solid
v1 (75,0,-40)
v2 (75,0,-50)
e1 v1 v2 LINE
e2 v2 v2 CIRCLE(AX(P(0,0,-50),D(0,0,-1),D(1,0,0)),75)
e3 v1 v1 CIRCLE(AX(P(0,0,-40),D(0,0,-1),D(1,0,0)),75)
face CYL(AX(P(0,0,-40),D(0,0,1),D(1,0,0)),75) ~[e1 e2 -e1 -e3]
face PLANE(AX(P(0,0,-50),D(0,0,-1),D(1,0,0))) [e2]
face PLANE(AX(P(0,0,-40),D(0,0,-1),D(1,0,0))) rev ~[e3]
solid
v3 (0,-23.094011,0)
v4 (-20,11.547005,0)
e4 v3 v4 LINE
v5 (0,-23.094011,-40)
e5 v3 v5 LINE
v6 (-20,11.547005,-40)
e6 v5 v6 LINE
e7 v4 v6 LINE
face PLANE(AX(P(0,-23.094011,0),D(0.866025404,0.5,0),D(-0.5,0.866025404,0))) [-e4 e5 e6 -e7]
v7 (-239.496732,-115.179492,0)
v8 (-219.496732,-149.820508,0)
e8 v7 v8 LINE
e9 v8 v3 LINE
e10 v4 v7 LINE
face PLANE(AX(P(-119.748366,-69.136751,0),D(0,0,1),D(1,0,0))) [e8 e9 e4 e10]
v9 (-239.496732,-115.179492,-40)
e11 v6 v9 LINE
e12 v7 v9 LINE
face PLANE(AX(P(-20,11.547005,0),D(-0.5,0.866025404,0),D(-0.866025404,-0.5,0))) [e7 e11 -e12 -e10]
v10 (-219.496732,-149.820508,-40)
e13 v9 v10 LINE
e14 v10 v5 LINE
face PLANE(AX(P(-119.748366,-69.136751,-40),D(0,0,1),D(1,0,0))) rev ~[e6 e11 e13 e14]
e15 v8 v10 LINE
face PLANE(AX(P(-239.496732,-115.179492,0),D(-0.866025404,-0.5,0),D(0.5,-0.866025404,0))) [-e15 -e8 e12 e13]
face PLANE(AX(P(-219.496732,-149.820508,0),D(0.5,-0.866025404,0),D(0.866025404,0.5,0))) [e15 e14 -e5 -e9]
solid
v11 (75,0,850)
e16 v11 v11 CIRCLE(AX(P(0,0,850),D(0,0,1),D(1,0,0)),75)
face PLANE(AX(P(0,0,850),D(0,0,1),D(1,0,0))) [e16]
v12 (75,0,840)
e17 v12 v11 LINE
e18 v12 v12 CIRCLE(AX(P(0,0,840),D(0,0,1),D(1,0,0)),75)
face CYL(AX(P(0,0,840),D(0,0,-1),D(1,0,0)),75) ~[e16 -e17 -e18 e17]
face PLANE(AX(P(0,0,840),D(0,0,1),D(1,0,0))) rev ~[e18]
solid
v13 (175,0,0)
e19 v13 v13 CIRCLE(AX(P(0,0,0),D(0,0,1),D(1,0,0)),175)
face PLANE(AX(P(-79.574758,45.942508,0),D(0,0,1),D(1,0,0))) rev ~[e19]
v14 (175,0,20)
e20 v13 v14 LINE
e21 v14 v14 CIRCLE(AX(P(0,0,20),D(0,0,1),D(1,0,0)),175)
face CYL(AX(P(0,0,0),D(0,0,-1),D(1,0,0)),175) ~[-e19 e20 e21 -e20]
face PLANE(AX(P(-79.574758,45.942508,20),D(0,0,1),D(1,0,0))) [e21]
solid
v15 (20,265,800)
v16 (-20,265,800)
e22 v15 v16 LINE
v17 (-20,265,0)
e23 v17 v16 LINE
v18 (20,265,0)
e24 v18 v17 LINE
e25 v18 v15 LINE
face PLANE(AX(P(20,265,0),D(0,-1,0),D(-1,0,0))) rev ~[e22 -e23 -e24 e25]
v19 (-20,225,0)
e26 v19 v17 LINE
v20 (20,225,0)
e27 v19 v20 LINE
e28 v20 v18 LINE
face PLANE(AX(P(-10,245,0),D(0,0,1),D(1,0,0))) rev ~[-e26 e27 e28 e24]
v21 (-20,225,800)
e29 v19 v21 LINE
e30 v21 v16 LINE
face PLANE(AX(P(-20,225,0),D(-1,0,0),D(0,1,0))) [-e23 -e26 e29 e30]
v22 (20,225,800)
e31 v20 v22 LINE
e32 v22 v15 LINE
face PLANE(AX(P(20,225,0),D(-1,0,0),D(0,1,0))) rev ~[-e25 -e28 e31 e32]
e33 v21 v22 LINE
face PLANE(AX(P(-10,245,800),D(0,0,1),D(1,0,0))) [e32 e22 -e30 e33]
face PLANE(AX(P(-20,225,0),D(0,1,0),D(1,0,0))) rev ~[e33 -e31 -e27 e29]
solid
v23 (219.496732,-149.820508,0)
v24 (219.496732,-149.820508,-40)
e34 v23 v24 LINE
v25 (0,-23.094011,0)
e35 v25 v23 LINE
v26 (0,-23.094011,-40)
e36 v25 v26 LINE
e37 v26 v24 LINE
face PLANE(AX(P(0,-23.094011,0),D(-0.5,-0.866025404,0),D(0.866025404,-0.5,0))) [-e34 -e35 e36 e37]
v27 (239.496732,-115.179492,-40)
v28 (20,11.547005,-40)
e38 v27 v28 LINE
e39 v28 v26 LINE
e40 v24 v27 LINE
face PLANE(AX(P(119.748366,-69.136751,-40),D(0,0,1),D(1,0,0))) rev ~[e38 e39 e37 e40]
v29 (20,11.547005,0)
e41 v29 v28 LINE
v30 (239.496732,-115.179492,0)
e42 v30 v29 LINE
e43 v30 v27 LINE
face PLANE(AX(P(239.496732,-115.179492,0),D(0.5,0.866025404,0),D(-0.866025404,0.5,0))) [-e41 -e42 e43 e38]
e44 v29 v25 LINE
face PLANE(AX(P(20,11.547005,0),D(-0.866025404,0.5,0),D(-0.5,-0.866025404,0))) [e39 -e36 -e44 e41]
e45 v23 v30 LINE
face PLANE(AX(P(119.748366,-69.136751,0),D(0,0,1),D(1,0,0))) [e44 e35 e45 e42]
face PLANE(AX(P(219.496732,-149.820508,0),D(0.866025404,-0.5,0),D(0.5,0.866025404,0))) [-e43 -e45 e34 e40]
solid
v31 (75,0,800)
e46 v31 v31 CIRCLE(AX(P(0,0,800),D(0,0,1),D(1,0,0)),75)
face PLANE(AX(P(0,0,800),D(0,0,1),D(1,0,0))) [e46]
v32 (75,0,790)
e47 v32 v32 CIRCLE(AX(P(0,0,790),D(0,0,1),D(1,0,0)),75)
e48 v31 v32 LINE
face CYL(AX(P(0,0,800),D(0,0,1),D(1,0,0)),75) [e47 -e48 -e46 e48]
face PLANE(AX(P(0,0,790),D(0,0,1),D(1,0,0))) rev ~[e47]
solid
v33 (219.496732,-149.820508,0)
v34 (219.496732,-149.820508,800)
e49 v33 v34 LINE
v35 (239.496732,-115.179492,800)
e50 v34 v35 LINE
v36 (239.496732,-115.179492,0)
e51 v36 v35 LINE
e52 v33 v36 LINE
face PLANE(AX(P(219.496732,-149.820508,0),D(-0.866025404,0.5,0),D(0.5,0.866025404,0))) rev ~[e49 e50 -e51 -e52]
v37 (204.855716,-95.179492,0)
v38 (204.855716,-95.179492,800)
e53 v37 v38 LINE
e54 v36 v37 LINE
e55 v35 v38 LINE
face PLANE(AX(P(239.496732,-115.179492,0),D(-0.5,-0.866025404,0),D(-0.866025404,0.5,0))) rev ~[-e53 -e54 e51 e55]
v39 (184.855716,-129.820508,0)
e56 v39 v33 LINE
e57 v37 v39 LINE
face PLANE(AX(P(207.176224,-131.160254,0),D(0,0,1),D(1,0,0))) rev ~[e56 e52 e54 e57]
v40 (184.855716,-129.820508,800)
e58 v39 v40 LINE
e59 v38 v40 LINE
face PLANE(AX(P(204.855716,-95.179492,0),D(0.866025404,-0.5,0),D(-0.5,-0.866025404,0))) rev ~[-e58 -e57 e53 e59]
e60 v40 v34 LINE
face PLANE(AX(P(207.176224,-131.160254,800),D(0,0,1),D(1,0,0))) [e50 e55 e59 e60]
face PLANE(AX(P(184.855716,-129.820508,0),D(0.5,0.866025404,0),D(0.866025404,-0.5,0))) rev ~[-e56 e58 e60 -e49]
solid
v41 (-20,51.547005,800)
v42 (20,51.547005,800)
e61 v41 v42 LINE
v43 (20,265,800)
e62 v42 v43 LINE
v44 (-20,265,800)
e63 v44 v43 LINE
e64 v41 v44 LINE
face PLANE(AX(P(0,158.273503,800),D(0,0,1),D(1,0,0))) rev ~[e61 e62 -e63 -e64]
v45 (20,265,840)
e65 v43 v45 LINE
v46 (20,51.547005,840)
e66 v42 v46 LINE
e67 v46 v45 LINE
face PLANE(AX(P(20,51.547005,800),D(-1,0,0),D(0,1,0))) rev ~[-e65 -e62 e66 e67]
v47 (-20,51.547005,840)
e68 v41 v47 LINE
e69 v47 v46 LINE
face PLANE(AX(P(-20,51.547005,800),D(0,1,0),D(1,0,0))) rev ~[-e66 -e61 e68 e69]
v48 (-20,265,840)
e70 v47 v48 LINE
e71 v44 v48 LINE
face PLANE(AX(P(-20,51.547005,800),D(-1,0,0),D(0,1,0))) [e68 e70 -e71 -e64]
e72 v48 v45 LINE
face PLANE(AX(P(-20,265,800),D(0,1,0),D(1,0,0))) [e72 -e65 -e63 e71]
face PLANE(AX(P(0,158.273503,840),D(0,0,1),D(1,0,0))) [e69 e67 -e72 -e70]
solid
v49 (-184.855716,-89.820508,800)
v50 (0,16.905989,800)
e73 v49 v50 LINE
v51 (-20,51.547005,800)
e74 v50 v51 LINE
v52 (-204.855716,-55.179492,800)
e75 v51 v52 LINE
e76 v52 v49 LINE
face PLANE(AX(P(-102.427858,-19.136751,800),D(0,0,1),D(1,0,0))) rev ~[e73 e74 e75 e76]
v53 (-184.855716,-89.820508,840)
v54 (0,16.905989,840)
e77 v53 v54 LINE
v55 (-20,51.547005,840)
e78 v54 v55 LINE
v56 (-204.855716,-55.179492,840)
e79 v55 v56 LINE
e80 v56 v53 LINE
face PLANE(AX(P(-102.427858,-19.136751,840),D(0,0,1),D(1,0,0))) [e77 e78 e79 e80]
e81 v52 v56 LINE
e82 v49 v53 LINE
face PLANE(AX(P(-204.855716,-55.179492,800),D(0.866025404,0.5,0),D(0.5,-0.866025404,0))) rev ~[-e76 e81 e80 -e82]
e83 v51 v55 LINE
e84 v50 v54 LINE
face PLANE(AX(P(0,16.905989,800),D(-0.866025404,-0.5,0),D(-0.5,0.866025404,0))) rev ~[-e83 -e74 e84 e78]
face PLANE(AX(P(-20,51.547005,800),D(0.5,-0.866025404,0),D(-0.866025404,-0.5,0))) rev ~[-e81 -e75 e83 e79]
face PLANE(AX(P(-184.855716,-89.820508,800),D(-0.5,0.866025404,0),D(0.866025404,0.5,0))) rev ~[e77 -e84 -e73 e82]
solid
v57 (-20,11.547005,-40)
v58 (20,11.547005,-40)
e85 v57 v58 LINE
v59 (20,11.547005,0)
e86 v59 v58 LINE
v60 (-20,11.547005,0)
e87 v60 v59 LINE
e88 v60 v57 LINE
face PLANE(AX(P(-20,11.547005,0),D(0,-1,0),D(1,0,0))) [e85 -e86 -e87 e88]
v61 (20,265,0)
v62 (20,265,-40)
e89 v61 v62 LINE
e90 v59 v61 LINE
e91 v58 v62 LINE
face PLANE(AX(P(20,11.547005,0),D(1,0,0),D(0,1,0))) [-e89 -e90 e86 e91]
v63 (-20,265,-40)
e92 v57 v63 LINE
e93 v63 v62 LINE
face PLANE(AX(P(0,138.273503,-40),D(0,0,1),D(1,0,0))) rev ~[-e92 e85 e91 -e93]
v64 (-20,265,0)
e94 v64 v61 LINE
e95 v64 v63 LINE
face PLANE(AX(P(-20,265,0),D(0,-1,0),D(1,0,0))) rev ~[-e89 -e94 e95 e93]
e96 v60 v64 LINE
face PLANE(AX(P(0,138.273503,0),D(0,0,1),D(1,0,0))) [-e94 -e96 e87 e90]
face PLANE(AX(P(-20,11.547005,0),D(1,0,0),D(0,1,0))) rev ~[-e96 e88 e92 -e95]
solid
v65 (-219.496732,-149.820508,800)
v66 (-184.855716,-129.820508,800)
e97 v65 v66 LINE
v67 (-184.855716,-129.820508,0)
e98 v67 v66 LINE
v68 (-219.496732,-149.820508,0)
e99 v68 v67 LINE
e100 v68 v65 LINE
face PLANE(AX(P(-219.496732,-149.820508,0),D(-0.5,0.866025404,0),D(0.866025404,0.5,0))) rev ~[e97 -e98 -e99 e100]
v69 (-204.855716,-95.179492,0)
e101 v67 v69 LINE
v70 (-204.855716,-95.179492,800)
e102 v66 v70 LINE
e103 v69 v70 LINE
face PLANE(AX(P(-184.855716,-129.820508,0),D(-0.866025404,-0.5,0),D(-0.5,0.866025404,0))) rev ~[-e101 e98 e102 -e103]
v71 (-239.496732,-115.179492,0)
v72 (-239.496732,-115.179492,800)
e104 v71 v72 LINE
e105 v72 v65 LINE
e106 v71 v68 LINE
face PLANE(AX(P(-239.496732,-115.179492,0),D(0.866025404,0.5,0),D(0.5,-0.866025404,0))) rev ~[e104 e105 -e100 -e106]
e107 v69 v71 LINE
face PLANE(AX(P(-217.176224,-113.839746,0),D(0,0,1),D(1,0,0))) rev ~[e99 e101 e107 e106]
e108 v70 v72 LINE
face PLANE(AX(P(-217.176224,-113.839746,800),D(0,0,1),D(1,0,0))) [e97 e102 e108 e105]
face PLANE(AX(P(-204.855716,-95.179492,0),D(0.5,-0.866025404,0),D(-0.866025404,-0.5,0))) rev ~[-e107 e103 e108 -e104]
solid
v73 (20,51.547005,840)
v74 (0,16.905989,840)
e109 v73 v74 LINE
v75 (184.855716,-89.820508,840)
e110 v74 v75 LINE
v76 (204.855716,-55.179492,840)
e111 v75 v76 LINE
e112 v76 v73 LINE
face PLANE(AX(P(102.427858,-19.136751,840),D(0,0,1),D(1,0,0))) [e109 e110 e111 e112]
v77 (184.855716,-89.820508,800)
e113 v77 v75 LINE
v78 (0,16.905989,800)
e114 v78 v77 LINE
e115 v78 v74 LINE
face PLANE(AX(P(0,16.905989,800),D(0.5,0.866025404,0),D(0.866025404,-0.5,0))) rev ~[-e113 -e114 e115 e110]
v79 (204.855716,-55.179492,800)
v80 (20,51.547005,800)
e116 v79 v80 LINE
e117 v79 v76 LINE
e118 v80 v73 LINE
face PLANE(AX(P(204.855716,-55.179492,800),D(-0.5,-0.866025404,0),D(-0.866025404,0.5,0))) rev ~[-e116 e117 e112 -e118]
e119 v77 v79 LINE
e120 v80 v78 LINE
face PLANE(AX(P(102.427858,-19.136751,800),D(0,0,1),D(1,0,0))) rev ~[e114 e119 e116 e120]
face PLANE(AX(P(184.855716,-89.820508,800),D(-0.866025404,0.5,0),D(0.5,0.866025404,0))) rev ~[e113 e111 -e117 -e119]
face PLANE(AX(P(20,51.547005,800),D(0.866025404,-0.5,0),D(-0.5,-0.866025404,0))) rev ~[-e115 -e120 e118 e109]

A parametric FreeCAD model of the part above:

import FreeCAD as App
import Part
import Sketcher

V = App.Vector
Q = App.Units.Quantity


def add_polygon(sketch, points):
    """Adds a closed chain of lines whose ends are joined by coincident constraints."""
    first, n = sketch.GeometryCount, len(points)
    for a, b in zip(points, points[1:] + points[:1]):
        sketch.addGeometry(Part.LineSegment(App.Vector(*a, 0), App.Vector(*b, 0)), False)
    for i in range(n):
        sketch.addConstraint(Sketcher.Constraint("Coincident", first + i, 2, first + (i + 1) % n, 1))

doc = App.newDocument("Part")
params = doc.addObject("Spreadsheet::Sheet", "Params")
for row, (alias, value) in enumerate([
    ("sketch1_width", "40 mm"),
    ("pad1_length", "800 mm"),
    ("sketch2_diameter", "350 mm"),
    ("pad2_length", "20 mm"),
    ("sketch3_width", "40 mm"),
    ("pad3_length", "40 mm"),
    ("sketch4_length", "40 mm"),
    ("pad4_length", "40 mm"),
    ("sketch5_length", "40 mm"),
    ("pad5_length", "40 mm"),
    ("sketch6_length", "40 mm"),
    ("pad6_length", "800 mm"),
    ("sketch7_length", "40 mm"),
    ("pad7_length", "800 mm"),
    ("sketch8_length", "40 mm"),
    ("pad8_length", "40 mm"),
    ("sketch9_width", "40 mm"),
    ("pad9_length", "40 mm"),
    ("sketch10_length", "40 mm"),
    ("pad10_length", "40 mm"),
    ("sketch11_diameter", "150 mm"),
    ("pad11_length", "10 mm"),
    ("sketch12_diameter", "150 mm"),
    ("pad12_length", "10 mm"),
    ("sketch13_diameter", "150 mm"),
    ("pad13_length", "10 mm"),
], start=1):
    params.set(f"A{row}", alias)
    params.set(f"B{row}", "=" + value)
    params.setAlias(f"B{row}", alias)

body = doc.addObject("PartDesign::Body", "Body")

sketch1 = doc.addObject("Sketcher::SketchObject", "Sketch")
body.addObject(sketch1)
sketch1.AttachmentSupport = (doc.XY_Plane, [""])
sketch1.MapMode = "FlatFace"
add_polygon(sketch1, [(-20, 265), (-20, 225), (20, 225), (20, 265)])
sketch1.addConstraint(Sketcher.Constraint("Vertical", 0))
sketch1.addConstraint(Sketcher.Constraint("Horizontal", 1))
sketch1.addConstraint(Sketcher.Constraint("Vertical", 2))
sketch1.addConstraint(Sketcher.Constraint("Horizontal", 3))
sketch1.addConstraint(Sketcher.Constraint("Equal", 3, 0))
sketch1.addConstraint(Sketcher.Constraint("DistanceX", 1, 1, 1, 2, Q("40 mm")))
sketch1.addConstraint(Sketcher.Constraint("DistanceX", 0, 2, -1, 1, Q("20 mm")))
sketch1.addConstraint(Sketcher.Constraint("DistanceY", -1, 1, 0, 2, Q("225 mm")))
sketch1.setExpression("Constraints[9]", "Params.sketch1_width")
pad1 = doc.addObject("PartDesign::Pad", "Pad")
body.addObject(pad1)
pad1.Profile = sketch1
pad1.setExpression("Length", "Params.pad1_length")
body2 = doc.addObject("PartDesign::Body", "Body001")

sketch2 = doc.addObject("Sketcher::SketchObject", "Sketch001")
body2.addObject(sketch2)
sketch2.AttachmentSupport = (doc.getObject("XY_Plane001"), [""])
sketch2.MapMode = "FlatFace"
sketch2.addGeometry(Part.Circle(V(0, 0, 0), V(0, 0, 1), 175), False)
sketch2.addConstraint(Sketcher.Constraint("Coincident", 0, 3, -1, 1))
sketch2.addConstraint(Sketcher.Constraint("Diameter", 0, Q("350 mm")))
sketch2.setExpression("Constraints[1]", "Params.sketch2_diameter")
pad2 = doc.addObject("PartDesign::Pad", "Pad001")
body2.addObject(pad2)
pad2.Profile = sketch2
pad2.setExpression("Length", "Params.pad2_length")
body3 = doc.addObject("PartDesign::Body", "Body002")

sketch3 = doc.addObject("Sketcher::SketchObject", "Sketch002")
body3.addObject(sketch3)
sketch3.AttachmentSupport = (doc.getObject("XY_Plane002"), [""])
sketch3.MapMode = "FlatFace"
add_polygon(sketch3, [(-20, 265), (-20, 12), (20, 12), (20, 265)])
sketch3.addConstraint(Sketcher.Constraint("Vertical", 0))
sketch3.addConstraint(Sketcher.Constraint("Horizontal", 1))
sketch3.addConstraint(Sketcher.Constraint("Vertical", 2))
sketch3.addConstraint(Sketcher.Constraint("Horizontal", 3))
sketch3.addConstraint(Sketcher.Constraint("DistanceX", 1, 1, 1, 2, Q("40 mm")))
sketch3.addConstraint(Sketcher.Constraint("DistanceX", 0, 2, -1, 1, Q("20 mm")))
sketch3.addConstraint(Sketcher.Constraint("DistanceY", -1, 1, 2, 2, Q("265 mm")))
sketch3.addConstraint(Sketcher.Constraint("DistanceY", 0, 2, 0, 1, Q("253.452995 mm")))
sketch3.setExpression("Constraints[8]", "Params.sketch3_width")
pad3 = doc.addObject("PartDesign::Pad", "Pad002")
body3.addObject(pad3)
pad3.Profile = sketch3
pad3.setExpression("Length", "Params.pad3_length")
pad3.Reversed = True
body4 = doc.addObject("PartDesign::Body", "Body003")

sketch4 = doc.addObject("Sketcher::SketchObject", "Sketch003")
body4.addObject(sketch4)
sketch4.AttachmentSupport = (doc.getObject("XY_Plane003"), [""])
sketch4.MapMode = "FlatFace"
add_polygon(sketch4, [(239, -115), (20, 12), (0, -23), (219, -150)])
sketch4.addConstraint(Sketcher.Constraint("PointOnObject", 1, 2, -2))
sketch4.addConstraint(Sketcher.Constraint("Perpendicular", 0, 1))
sketch4.addConstraint(Sketcher.Constraint("Perpendicular", 1, 2))
sketch4.addConstraint(Sketcher.Constraint("Perpendicular", 2, 3))
sketch4.addConstraint(Sketcher.Constraint("Angle", 0, Q("150 deg")))
sketch4.addConstraint(Sketcher.Constraint("Distance", 1, Q("40 mm")))
sketch4.addConstraint(Sketcher.Constraint("DistanceY", 1, 2, -1, 1, Q("23.094011 mm")))
sketch4.addConstraint(Sketcher.Constraint("DistanceY", 2, 2, -1, 1, Q("149.820508 mm")))
sketch4.setExpression("Constraints[9]", "Params.sketch4_length")
pad4 = doc.addObject("PartDesign::Pad", "Pad003")
body4.addObject(pad4)
pad4.Profile = sketch4
pad4.setExpression("Length", "Params.pad4_length")
pad4.Reversed = True
body5 = doc.addObject("PartDesign::Body", "Body004")

sketch5 = doc.addObject("Sketcher::SketchObject", "Sketch004")
body5.addObject(sketch5)
sketch5.AttachmentSupport = (doc.getObject("XY_Plane004"), [""])
sketch5.MapMode = "FlatFace"
add_polygon(sketch5, [(0, -23), (-20, 12), (-239, -115), (-219, -150)])
sketch5.addConstraint(Sketcher.Constraint("PointOnObject", 3, 2, -2))
sketch5.addConstraint(Sketcher.Constraint("Perpendicular", 0, 1))
sketch5.addConstraint(Sketcher.Constraint("Perpendicular", 1, 2))
sketch5.addConstraint(Sketcher.Constraint("Perpendicular", 2, 3))
sketch5.addConstraint(Sketcher.Constraint("Angle", 0, Q("120 deg")))
sketch5.addConstraint(Sketcher.Constraint("Distance", 0, Q("40 mm")))
sketch5.addConstraint(Sketcher.Constraint("DistanceY", 1, 2, -1, 1, Q("115.179492 mm")))
sketch5.addConstraint(Sketcher.Constraint("DistanceY", 3, 2, -1, 1, Q("23.094011 mm")))
sketch5.setExpression("Constraints[9]", "Params.sketch5_length")
pad5 = doc.addObject("PartDesign::Pad", "Pad004")
body5.addObject(pad5)
pad5.Profile = sketch5
pad5.setExpression("Length", "Params.pad5_length")
pad5.Reversed = True
body6 = doc.addObject("PartDesign::Body", "Body005")

sketch6 = doc.addObject("Sketcher::SketchObject", "Sketch005")
body6.addObject(sketch6)
sketch6.AttachmentSupport = (doc.getObject("XY_Plane005"), [""])
sketch6.MapMode = "FlatFace"
add_polygon(sketch6, [(-205, -95), (-239, -115), (-219, -150), (-185, -130)])
sketch6.addConstraint(Sketcher.Constraint("Perpendicular", 0, 1))
sketch6.addConstraint(Sketcher.Constraint("Perpendicular", 1, 2))
sketch6.addConstraint(Sketcher.Constraint("Perpendicular", 2, 3))
sketch6.addConstraint(Sketcher.Constraint("Equal", 0, 1))
sketch6.addConstraint(Sketcher.Constraint("Angle", 0, Q("-150 deg")))
sketch6.addConstraint(Sketcher.Constraint("Distance", 0, Q("40 mm")))
sketch6.addConstraint(Sketcher.Constraint("DistanceY", 0, 2, -1, 1, Q("115.179492 mm")))
sketch6.addConstraint(Sketcher.Constraint("DistanceX", 0, 2, -1, 1, Q("239.496732 mm")))
sketch6.setExpression("Constraints[9]", "Params.sketch6_length")
pad6 = doc.addObject("PartDesign::Pad", "Pad005")
body6.addObject(pad6)
pad6.Profile = sketch6
pad6.setExpression("Length", "Params.pad6_length")
body7 = doc.addObject("PartDesign::Body", "Body006")

sketch7 = doc.addObject("Sketcher::SketchObject", "Sketch006")
body7.addObject(sketch7)
sketch7.AttachmentSupport = (doc.getObject("XY_Plane006"), [""])
sketch7.MapMode = "FlatFace"
add_polygon(sketch7, [(185, -130), (219, -150), (239, -115), (205, -95)])
sketch7.addConstraint(Sketcher.Constraint("Perpendicular", 0, 1))
sketch7.addConstraint(Sketcher.Constraint("Perpendicular", 1, 2))
sketch7.addConstraint(Sketcher.Constraint("Perpendicular", 2, 3))
sketch7.addConstraint(Sketcher.Constraint("Equal", 0, 1))
sketch7.addConstraint(Sketcher.Constraint("Angle", 0, Q("-30 deg")))
sketch7.addConstraint(Sketcher.Constraint("Distance", 0, Q("40 mm")))
sketch7.addConstraint(Sketcher.Constraint("DistanceY", 0, 2, -1, 1, Q("149.820508 mm")))
sketch7.addConstraint(Sketcher.Constraint("DistanceX", -1, 1, 0, 2, Q("219.496732 mm")))
sketch7.setExpression("Constraints[9]", "Params.sketch7_length")
pad7 = doc.addObject("PartDesign::Pad", "Pad006")
body7.addObject(pad7)
pad7.Profile = sketch7
pad7.setExpression("Length", "Params.pad7_length")
body8 = doc.addObject("PartDesign::Body", "Body007")

sketch8 = doc.addObject("Sketcher::SketchObject", "Sketch007")
body8.addObject(sketch8)
sketch8.AttachmentSupport = (doc.getObject("XY_Plane007"), [""])
sketch8.MapMode = "FlatFace"
sketch8.AttachmentOffset = App.Placement(V(0, 0, 800), App.Rotation())
add_polygon(sketch8, [(0, 17), (-20, 52), (-205, -55), (-185, -90)])
sketch8.addConstraint(Sketcher.Constraint("PointOnObject", 3, 2, -2))
sketch8.addConstraint(Sketcher.Constraint("Perpendicular", 0, 1))
sketch8.addConstraint(Sketcher.Constraint("Perpendicular", 1, 2))
sketch8.addConstraint(Sketcher.Constraint("Perpendicular", 2, 3))
sketch8.addConstraint(Sketcher.Constraint("Angle", 0, Q("120 deg")))
sketch8.addConstraint(Sketcher.Constraint("Distance", 0, Q("40 mm")))
sketch8.addConstraint(Sketcher.Constraint("DistanceY", 1, 2, -1, 1, Q("55.179492 mm")))
sketch8.addConstraint(Sketcher.Constraint("DistanceY", -1, 1, 3, 2, Q("16.905989 mm")))
sketch8.setExpression("Constraints[9]", "Params.sketch8_length")
pad8 = doc.addObject("PartDesign::Pad", "Pad007")
body8.addObject(pad8)
pad8.Profile = sketch8
pad8.setExpression("Length", "Params.pad8_length")
body9 = doc.addObject("PartDesign::Body", "Body008")

sketch9 = doc.addObject("Sketcher::SketchObject", "Sketch008")
body9.addObject(sketch9)
sketch9.AttachmentSupport = (doc.getObject("XY_Plane008"), [""])
sketch9.MapMode = "FlatFace"
sketch9.AttachmentOffset = App.Placement(V(0, 0, 800), App.Rotation())
add_polygon(sketch9, [(-20, 265), (-20, 52), (20, 52), (20, 265)])
sketch9.addConstraint(Sketcher.Constraint("Vertical", 0))
sketch9.addConstraint(Sketcher.Constraint("Horizontal", 1))
sketch9.addConstraint(Sketcher.Constraint("Vertical", 2))
sketch9.addConstraint(Sketcher.Constraint("Horizontal", 3))
sketch9.addConstraint(Sketcher.Constraint("DistanceX", 1, 1, 1, 2, Q("40 mm")))
sketch9.addConstraint(Sketcher.Constraint("DistanceX", 0, 2, -1, 1, Q("20 mm")))
sketch9.addConstraint(Sketcher.Constraint("DistanceY", -1, 1, 2, 2, Q("265 mm")))
sketch9.addConstraint(Sketcher.Constraint("DistanceY", 0, 2, 0, 1, Q("213.452995 mm")))
sketch9.setExpression("Constraints[8]", "Params.sketch9_width")
pad9 = doc.addObject("PartDesign::Pad", "Pad008")
body9.addObject(pad9)
pad9.Profile = sketch9
pad9.setExpression("Length", "Params.pad9_length")
body10 = doc.addObject("PartDesign::Body", "Body009")

sketch10 = doc.addObject("Sketcher::SketchObject", "Sketch009")
body10.addObject(sketch10)
sketch10.AttachmentSupport = (doc.getObject("XY_Plane009"), [""])
sketch10.MapMode = "FlatFace"
sketch10.AttachmentOffset = App.Placement(V(0, 0, 800), App.Rotation())
add_polygon(sketch10, [(205, -55), (20, 52), (0, 17), (185, -90)])
sketch10.addConstraint(Sketcher.Constraint("PointOnObject", 1, 2, -2))
sketch10.addConstraint(Sketcher.Constraint("Perpendicular", 0, 1))
sketch10.addConstraint(Sketcher.Constraint("Perpendicular", 1, 2))
sketch10.addConstraint(Sketcher.Constraint("Perpendicular", 2, 3))
sketch10.addConstraint(Sketcher.Constraint("Angle", 0, Q("150 deg")))
sketch10.addConstraint(Sketcher.Constraint("Distance", 1, Q("40 mm")))
sketch10.addConstraint(Sketcher.Constraint("DistanceY", -1, 1, 1, 2, Q("16.905989 mm")))
sketch10.addConstraint(Sketcher.Constraint("DistanceY", 2, 2, -1, 1, Q("89.820508 mm")))
sketch10.setExpression("Constraints[9]", "Params.sketch10_length")
pad10 = doc.addObject("PartDesign::Pad", "Pad009")
body10.addObject(pad10)
pad10.Profile = sketch10
pad10.setExpression("Length", "Params.pad10_length")
body11 = doc.addObject("PartDesign::Body", "Body010")

sketch11 = doc.addObject("Sketcher::SketchObject", "Sketch010")
body11.addObject(sketch11)
sketch11.AttachmentSupport = (doc.getObject("XY_Plane010"), [""])
sketch11.MapMode = "FlatFace"
sketch11.AttachmentOffset = App.Placement(V(0, 0, 840), App.Rotation())
sketch11.addGeometry(Part.Circle(V(0, 0, 0), V(0, 0, 1), 75), False)
sketch11.addConstraint(Sketcher.Constraint("Coincident", 0, 3, -1, 1))
sketch11.addConstraint(Sketcher.Constraint("Diameter", 0, Q("150 mm")))
sketch11.setExpression("Constraints[1]", "Params.sketch11_diameter")
pad11 = doc.addObject("PartDesign::Pad", "Pad010")
body11.addObject(pad11)
pad11.Profile = sketch11
pad11.setExpression("Length", "Params.pad11_length")
body12 = doc.addObject("PartDesign::Body", "Body011")

sketch12 = doc.addObject("Sketcher::SketchObject", "Sketch011")
body12.addObject(sketch12)
sketch12.AttachmentSupport = (doc.getObject("XY_Plane011"), [""])
sketch12.MapMode = "FlatFace"
sketch12.AttachmentOffset = App.Placement(V(0, 0, 800), App.Rotation())
sketch12.addGeometry(Part.Circle(V(0, 0, 0), V(0, 0, 1), 75), False)
sketch12.addConstraint(Sketcher.Constraint("Coincident", 0, 3, -1, 1))
sketch12.addConstraint(Sketcher.Constraint("Diameter", 0, Q("150 mm")))
sketch12.setExpression("Constraints[1]", "Params.sketch12_diameter")
pad12 = doc.addObject("PartDesign::Pad", "Pad011")
body12.addObject(pad12)
pad12.Profile = sketch12
pad12.setExpression("Length", "Params.pad12_length")
pad12.Reversed = True
body13 = doc.addObject("PartDesign::Body", "Body012")

sketch13 = doc.addObject("Sketcher::SketchObject", "Sketch012")
body13.addObject(sketch13)
sketch13.AttachmentSupport = (doc.getObject("XY_Plane012"), [""])
sketch13.MapMode = "FlatFace"
sketch13.AttachmentOffset = App.Placement(V(0, 0, -40), App.Rotation())
sketch13.addGeometry(Part.Circle(V(0, 0, 0), V(0, 0, 1), 75), False)
sketch13.addConstraint(Sketcher.Constraint("Coincident", 0, 3, -1, 1))
sketch13.addConstraint(Sketcher.Constraint("Diameter", 0, Q("150 mm")))
sketch13.setExpression("Constraints[1]", "Params.sketch13_diameter")
pad13 = doc.addObject("PartDesign::Pad", "Pad012")
body13.addObject(pad13)
pad13.Profile = sketch13
pad13.setExpression("Length", "Params.pad13_length")
pad13.Reversed = True

doc.recompute()
